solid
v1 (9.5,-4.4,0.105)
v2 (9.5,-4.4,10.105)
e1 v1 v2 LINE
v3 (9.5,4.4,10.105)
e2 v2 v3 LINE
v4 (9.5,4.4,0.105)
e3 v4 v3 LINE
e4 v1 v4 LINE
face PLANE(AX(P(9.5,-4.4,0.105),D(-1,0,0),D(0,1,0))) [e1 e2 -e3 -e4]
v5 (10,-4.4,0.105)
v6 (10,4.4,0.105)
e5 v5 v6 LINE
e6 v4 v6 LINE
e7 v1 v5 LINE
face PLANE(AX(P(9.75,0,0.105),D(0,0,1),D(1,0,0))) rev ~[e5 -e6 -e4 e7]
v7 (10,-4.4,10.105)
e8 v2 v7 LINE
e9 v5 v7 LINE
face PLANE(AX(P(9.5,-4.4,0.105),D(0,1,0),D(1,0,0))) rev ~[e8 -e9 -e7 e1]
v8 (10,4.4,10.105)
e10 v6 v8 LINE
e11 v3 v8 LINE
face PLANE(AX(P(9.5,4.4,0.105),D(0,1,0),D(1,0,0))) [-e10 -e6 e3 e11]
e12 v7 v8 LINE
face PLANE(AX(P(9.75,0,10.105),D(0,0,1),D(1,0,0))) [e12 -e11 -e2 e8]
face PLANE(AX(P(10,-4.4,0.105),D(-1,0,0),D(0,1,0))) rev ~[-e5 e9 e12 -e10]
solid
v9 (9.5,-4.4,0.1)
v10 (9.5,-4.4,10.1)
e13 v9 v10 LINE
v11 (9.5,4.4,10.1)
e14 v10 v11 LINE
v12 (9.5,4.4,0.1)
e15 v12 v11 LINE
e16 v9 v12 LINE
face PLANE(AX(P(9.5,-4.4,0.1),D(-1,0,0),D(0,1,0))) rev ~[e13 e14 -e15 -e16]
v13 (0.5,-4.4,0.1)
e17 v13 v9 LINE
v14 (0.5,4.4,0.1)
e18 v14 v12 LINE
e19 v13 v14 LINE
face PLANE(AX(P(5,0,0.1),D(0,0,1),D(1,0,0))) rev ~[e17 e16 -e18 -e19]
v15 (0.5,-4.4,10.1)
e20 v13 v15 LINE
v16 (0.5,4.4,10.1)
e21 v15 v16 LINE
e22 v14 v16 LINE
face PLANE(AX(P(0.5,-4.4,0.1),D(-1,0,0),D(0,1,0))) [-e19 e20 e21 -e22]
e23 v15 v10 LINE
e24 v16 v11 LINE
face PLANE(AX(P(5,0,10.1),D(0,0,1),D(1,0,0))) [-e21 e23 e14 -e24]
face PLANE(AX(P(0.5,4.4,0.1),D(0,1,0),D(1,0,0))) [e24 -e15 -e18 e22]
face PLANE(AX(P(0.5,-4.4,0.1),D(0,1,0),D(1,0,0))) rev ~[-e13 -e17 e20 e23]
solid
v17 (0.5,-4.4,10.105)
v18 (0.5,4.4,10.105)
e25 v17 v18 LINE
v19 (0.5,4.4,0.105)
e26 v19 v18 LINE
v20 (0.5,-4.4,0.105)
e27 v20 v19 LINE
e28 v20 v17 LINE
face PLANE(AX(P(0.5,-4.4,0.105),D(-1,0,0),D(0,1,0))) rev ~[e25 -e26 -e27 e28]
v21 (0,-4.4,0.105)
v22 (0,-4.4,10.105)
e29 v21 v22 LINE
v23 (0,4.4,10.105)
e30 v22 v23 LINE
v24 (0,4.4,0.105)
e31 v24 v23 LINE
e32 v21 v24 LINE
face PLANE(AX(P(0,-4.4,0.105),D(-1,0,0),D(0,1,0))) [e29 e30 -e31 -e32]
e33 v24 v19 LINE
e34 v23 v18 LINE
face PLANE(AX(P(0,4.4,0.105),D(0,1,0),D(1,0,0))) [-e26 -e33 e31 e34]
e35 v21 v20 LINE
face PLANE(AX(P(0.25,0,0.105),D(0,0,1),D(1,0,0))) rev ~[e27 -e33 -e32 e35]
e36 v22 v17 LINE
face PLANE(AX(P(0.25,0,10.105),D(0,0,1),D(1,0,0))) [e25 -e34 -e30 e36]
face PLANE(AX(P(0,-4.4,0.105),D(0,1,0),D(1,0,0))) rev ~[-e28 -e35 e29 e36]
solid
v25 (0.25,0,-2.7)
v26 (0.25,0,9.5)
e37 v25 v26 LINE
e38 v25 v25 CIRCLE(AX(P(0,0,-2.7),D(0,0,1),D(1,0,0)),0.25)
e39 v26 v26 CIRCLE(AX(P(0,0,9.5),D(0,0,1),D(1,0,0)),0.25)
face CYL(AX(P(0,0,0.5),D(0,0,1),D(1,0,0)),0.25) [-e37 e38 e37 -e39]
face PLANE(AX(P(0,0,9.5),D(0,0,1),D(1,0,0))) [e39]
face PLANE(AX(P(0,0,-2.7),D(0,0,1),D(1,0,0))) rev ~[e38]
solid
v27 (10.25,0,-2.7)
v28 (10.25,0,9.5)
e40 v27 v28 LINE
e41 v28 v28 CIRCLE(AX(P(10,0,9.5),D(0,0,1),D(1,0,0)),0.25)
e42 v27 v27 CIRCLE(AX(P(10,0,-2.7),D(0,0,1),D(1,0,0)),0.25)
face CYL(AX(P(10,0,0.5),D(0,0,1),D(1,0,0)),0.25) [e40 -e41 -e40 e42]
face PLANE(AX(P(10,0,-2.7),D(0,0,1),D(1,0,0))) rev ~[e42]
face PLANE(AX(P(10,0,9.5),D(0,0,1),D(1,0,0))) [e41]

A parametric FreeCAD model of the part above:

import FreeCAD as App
import Part
import Sketcher
Q = App.Units.Quantity


def add_polygon(sketch, points):
    """Adds a closed chain of lines whose ends are joined by coincident constraints."""
    first, n = sketch.GeometryCount, len(points)
    for a, b in zip(points, points[1:] + points[:1]):
        sketch.addGeometry(Part.LineSegment(App.Vector(*a, 0), App.Vector(*b, 0)), False)
    for i in range(n):
        sketch.addConstraint(Sketcher.Constraint("Coincident", first + i, 2, first + (i + 1) % n, 1))

doc = App.newDocument("Part")
params = doc.addObject("Spreadsheet::Sheet", "Params")
for row, (alias, value) in enumerate([
    ("sketch1_width", "9 mm"),
    ("sketch1_height", "8.8 mm"),
    ("pad1_length", "10 mm"),
    ("sketch2_diameter", "0.5 mm"),
    ("pad2_length", "9 mm"),
    ("pad2_length2", "3.2 mm"),
    ("sketch3_width", "0.5 mm"),
    ("sketch3_height", "8.8 mm"),
    ("pad3_length", "10 mm"),
], start=1):
    params.set(f"A{row}", alias)
    params.set(f"B{row}", "=" + value)
    params.setAlias(f"B{row}", alias)

body = doc.addObject("PartDesign::Body", "Body")

# Sketch on XY plane
sketch1 = doc.addObject("Sketcher::SketchObject", "Sketch")
body.addObject(sketch1)
sketch1.AttachmentSupport = (doc.XY_Plane, [""])
sketch1.MapMode = "FlatFace"
sketch1.AttachmentOffset = App.Placement(App.Vector(0, 0, 0.1), App.Rotation())
add_polygon(sketch1, [(0, 4), (0, -4), (10, -4), (10, 4)])  # lines 0-3
sketch1.addConstraint([
    Sketcher.Constraint("Vertical", 0),
    Sketcher.Constraint("Horizontal", 1),
    Sketcher.Constraint("Vertical", 2),
    Sketcher.Constraint("Horizontal", 3),
    Sketcher.Constraint("DistanceX", 1, 1, 1, 2, Q("9 mm")),
    Sketcher.Constraint("DistanceY", 0, 2, 0, 1, Q("8.8 mm")),
    Sketcher.Constraint("DistanceX", -1, 1, 0, 2, Q("0.5 mm")),
    Sketcher.Constraint("DistanceY", 0, 2, -1, 1, Q("4.4 mm")),
])
sketch1.setExpression("Constraints[8]", "Params.sketch1_width")
sketch1.setExpression("Constraints[9]", "Params.sketch1_height")
pad1 = doc.addObject("PartDesign::Pad", "Pad")
body.addObject(pad1)
pad1.Profile = sketch1
pad1.setExpression("Length", "Params.pad1_length")
body2 = doc.addObject("PartDesign::Body", "Body001")
body2.AllowCompound = True

# Sketch on XY plane
sketch2 = doc.addObject("Sketcher::SketchObject", "Sketch001")
body2.addObject(sketch2)
sketch2.AttachmentSupport = (doc.getObject("XY_Plane001"), [""])
sketch2.MapMode = "FlatFace"
sketch2.AttachmentOffset = App.Placement(App.Vector(0, 0, 0.5), App.Rotation())
sketch2.addGeometry([
    Part.Circle(App.Vector(0, 0, 0), App.Vector(0, 0, 1), 0.25),
    Part.Circle(App.Vector(10, 0, 0), App.Vector(0, 0, 1), 0.25),
], False)
sketch2.addConstraint([
    Sketcher.Constraint("Coincident", 0, 3, -1, 1),
    Sketcher.Constraint("Equal", 0, 1),
    Sketcher.Constraint("PointOnObject", 1, 3, -1),
    Sketcher.Constraint("Diameter", 0, Q("0.5 mm")),
    Sketcher.Constraint("DistanceX", -1, 1, 1, 3, Q("10 mm")),
])
sketch2.setExpression("Constraints[3]", "Params.sketch2_diameter")
pad2 = doc.addObject("PartDesign::Pad", "Pad001")
body2.addObject(pad2)
pad2.Profile = sketch2
pad2.Type = "TwoLengths"
pad2.setExpression("Length", "Params.pad2_length")
pad2.setExpression("Length2", "Params.pad2_length2")
body3 = doc.addObject("PartDesign::Body", "Body002")
body3.AllowCompound = True

# Sketch on XY plane
sketch3 = doc.addObject("Sketcher::SketchObject", "Sketch002")
body3.addObject(sketch3)
sketch3.AttachmentSupport = (doc.getObject("XY_Plane002"), [""])
sketch3.MapMode = "FlatFace"
sketch3.AttachmentOffset = App.Placement(App.Vector(0, 0, 0.105), App.Rotation())
add_polygon(sketch3, [(0, 4.4), (0, -4.4), (0.5, -4.4), (0.5, 4.4)])  # lines 0-3
add_polygon(sketch3, [(9.5, 4.4), (9.5, -4.4), (10, -4.4), (10, 4.4)])  # lines 4-7
sketch3.addConstraint([
    Sketcher.Constraint("Vertical", 0),
    Sketcher.Constraint("Horizontal", 1),
    Sketcher.Constraint("Vertical", 2),
    Sketcher.Constraint("Horizontal", 3),
    Sketcher.Constraint("Vertical", 4),
    Sketcher.Constraint("Horizontal", 5),
    Sketcher.Constraint("Vertical", 6),
    Sketcher.Constraint("Horizontal", 7),
    Sketcher.Constraint("Symmetric", 0, 2, 3, 2, -1, 1),
    Sketcher.Constraint("Horizontal", 1, 2, 4, 2),
    Sketcher.Constraint("Horizontal", 3, 2, 6, 2),
    Sketcher.Constraint("Equal", 3, 5),
    Sketcher.Constraint("DistanceX", 1, 1, 1, 2, Q("0.5 mm")),
    Sketcher.Constraint("DistanceY", 0, 2, 0, 1, Q("8.8 mm")),
    Sketcher.Constraint("DistanceX", -1, 1, 5, 2, Q("10 mm")),
])
sketch3.setExpression("Constraints[20]", "Params.sketch3_width")
sketch3.setExpression("Constraints[21]", "Params.sketch3_height")
pad3 = doc.addObject("PartDesign::Pad", "Pad002")
body3.addObject(pad3)
pad3.Profile = sketch3
pad3.setExpression("Length", "Params.pad3_length")

doc.recompute()
